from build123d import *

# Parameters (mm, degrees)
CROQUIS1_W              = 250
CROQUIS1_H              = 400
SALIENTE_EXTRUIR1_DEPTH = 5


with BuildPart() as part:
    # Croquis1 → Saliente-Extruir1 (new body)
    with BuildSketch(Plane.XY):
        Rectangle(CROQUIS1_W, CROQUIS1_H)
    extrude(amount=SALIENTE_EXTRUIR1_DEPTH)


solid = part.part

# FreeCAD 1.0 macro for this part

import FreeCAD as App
import Part
import Sketcher


def add_polygon(sketch, points):
    """Adds a closed chain of lines whose ends are joined by coincident constraints."""
    first, n = sketch.GeometryCount, len(points)
    for a, b in zip(points, points[1:] + points[:1]):
        sketch.addGeometry(Part.LineSegment(App.Vector(*a, 0), App.Vector(*b, 0)), False)
    for i in range(n):
        sketch.addConstraint(Sketcher.Constraint("Coincident", first + i, 2, first + (i + 1) % n, 1))

doc = App.newDocument("Part")
body = doc.addObject("PartDesign::Body", "Body")

sketch1 = body.newObject("Sketcher::SketchObject", "Sketch")
sketch1.AttachmentSupport = (doc.getObject("XY_Plane"), [""])
sketch1.MapMode = "FlatFace"
add_polygon(sketch1, [(-125, 200), (-125, -200), (125, -200), (125, 200)])
sketch1.addConstraint([
    Sketcher.Constraint("Vertical", 0),
    Sketcher.Constraint("Horizontal", 1),
    Sketcher.Constraint("Vertical", 2),
    Sketcher.Constraint("Horizontal", 3),
    Sketcher.Constraint("Symmetric", 0, 2, 2, 2, -1, 1),
    Sketcher.Constraint("DistanceX", 1, 1, 1, 2, 250.0),
    Sketcher.Constraint("DistanceY", 0, 2, 0, 1, 400.0),
])
pad1 = body.newObject("PartDesign::Pad", "Pad")
pad1.Profile = sketch1
pad1.Length = 5

doc.recompute()
